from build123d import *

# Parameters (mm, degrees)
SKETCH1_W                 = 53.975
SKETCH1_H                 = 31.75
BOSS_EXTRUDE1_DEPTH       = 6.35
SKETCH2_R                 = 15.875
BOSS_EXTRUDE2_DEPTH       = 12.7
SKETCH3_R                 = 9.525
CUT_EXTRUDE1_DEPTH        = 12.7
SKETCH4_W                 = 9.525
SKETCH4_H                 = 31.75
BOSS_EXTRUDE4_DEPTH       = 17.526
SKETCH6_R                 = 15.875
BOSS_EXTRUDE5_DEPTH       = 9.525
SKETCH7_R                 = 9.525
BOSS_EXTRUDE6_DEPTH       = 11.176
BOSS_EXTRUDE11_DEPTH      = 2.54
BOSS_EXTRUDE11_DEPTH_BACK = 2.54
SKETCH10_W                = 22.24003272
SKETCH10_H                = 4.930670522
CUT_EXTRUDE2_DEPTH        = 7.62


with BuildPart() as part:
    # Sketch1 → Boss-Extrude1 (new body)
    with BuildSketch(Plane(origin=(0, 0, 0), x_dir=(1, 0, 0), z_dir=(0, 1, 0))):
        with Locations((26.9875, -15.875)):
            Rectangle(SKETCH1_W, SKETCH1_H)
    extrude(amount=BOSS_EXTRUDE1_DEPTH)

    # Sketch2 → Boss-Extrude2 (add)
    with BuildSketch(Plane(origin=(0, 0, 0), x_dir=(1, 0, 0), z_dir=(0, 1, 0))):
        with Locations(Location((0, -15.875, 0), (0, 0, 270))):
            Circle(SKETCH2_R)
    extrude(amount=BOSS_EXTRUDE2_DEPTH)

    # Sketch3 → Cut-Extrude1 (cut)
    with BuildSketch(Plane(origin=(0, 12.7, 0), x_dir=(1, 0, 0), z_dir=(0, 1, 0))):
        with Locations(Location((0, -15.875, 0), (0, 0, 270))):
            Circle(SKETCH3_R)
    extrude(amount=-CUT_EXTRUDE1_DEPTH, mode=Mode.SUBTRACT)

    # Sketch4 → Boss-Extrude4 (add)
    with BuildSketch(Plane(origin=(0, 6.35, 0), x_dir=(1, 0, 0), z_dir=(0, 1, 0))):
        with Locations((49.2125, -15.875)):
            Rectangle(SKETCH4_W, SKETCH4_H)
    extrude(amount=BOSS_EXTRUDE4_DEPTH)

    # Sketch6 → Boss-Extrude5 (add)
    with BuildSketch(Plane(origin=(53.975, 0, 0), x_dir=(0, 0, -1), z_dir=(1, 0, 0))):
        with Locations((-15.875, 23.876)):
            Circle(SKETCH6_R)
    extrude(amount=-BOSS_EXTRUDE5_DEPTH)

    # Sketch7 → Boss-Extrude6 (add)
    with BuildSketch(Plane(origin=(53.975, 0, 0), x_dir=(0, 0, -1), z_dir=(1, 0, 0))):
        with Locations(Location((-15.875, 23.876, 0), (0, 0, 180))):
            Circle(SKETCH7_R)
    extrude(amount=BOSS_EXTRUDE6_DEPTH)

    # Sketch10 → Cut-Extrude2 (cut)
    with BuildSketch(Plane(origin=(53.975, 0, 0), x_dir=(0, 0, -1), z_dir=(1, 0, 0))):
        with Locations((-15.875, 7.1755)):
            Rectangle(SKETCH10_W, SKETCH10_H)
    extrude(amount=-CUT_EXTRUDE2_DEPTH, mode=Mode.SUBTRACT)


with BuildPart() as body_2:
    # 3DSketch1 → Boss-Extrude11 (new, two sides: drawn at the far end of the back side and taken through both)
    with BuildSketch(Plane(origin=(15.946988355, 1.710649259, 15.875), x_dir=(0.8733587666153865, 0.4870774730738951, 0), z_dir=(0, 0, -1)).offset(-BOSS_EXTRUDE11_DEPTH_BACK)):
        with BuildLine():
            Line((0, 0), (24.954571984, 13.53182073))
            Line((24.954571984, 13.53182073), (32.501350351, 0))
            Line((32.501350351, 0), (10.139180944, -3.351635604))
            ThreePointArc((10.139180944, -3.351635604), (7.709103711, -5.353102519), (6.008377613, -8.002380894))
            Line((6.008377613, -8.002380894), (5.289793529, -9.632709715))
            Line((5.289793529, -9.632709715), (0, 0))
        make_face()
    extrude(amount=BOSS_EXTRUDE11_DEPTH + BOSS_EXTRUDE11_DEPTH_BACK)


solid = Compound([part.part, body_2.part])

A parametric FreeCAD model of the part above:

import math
import FreeCAD as App
import Part
import Sketcher
from FreeCAD import Vector
Q = App.Units.Quantity


def add_polygon(sketch, points):
    """Adds a closed chain of lines whose ends are joined by coincident constraints."""
    first, n = sketch.GeometryCount, len(points)
    for a, b in zip(points, points[1:] + points[:1]):
        sketch.addGeometry(Part.LineSegment(App.Vector(*a, 0), App.Vector(*b, 0)), False)
    for i in range(n):
        sketch.addConstraint(Sketcher.Constraint("Coincident", first + i, 2, first + (i + 1) % n, 1))

doc = App.newDocument("Part")
body = doc.addObject("PartDesign::Body", "Body")

# Sketch on XZ plane
sketch1 = doc.addObject("Sketcher::SketchObject", "Sketch")
body.addObject(sketch1)
sketch1.AttachmentSupport = (doc.XZ_Plane, [""])
sketch1.MapMode = "FlatFace"
add_polygon(sketch1, [(0, 0), (0, 32), (54, 32), (54, 0)])  # lines 0-3
sketch1.addConstraint(Sketcher.Constraint("Vertical", 0))
sketch1.addConstraint(Sketcher.Constraint("Horizontal", 1))
sketch1.addConstraint(Sketcher.Constraint("Vertical", 2))
sketch1.addConstraint(Sketcher.Constraint("Horizontal", 3))
sketch1.addConstraint(Sketcher.Constraint("Coincident", 3, 2, -1, 1))
sketch1.addConstraint(Sketcher.Constraint("DistanceY", 0, 1, 0, 2, Q("1.25 in")))
sketch1.addConstraint(Sketcher.Constraint("DistanceX", 1, 1, 1, 2, Q("2.125 in")))
pad1 = doc.addObject("PartDesign::Pad", "Pad")
body.addObject(pad1)
pad1.Profile = sketch1
pad1.Length = Q("0.25 in")
pad1.Reversed = True

# Sketch on XZ plane
sketch2 = doc.addObject("Sketcher::SketchObject", "Sketch001")
body.addObject(sketch2)
sketch2.AttachmentSupport = (doc.XZ_Plane, [""])
sketch2.MapMode = "FlatFace"
sketch2.addGeometry(Part.Circle(Vector(0, 16, 0), Vector(0, 0, 1), 16), False)
sketch2.addConstraint(Sketcher.Constraint("PointOnObject", 0, 3, -2))
sketch2.addConstraint(Sketcher.Constraint("Diameter", 0, Q("1.25 in")))
sketch2.addConstraint(Sketcher.Constraint("DistanceY", -1, 1, 0, 3, Q("0.625 in")))
pad2 = doc.addObject("PartDesign::Pad", "Pad001")
body.addObject(pad2)
pad2.Profile = sketch2
pad2.Length = Q("0.5 in")
pad2.Reversed = True

# Sketch on XZ plane
sketch3 = doc.addObject("Sketcher::SketchObject", "Sketch002")
body.addObject(sketch3)
sketch3.AttachmentSupport = (doc.XZ_Plane, [""])
sketch3.MapMode = "FlatFace"
sketch3.AttachmentOffset = App.Placement(Vector(0, 0, -0.5 * 25.4), App.Rotation())
sketch3.addGeometry(Part.Circle(Vector(0, 16, 0), Vector(0, 0, 1), 10), False)
sketch3.addConstraint(Sketcher.Constraint("PointOnObject", 0, 3, -2))
sketch3.addConstraint(Sketcher.Constraint("Diameter", 0, Q("0.75 in")))
sketch3.addConstraint(Sketcher.Constraint("DistanceY", -1, 1, 0, 3, Q("0.625 in")))
pocket1 = doc.addObject("PartDesign::Pocket", "Pocket")
body.addObject(pocket1)
pocket1.Profile = sketch3
pocket1.Length = Q("0.5 in")
pocket1.Reversed = True

# Sketch on XZ plane
sketch4 = doc.addObject("Sketcher::SketchObject", "Sketch003")
body.addObject(sketch4)
sketch4.AttachmentSupport = (doc.XZ_Plane, [""])
sketch4.MapMode = "FlatFace"
sketch4.AttachmentOffset = App.Placement(Vector(0, 0, -0.25 * 25.4), App.Rotation())
add_polygon(sketch4, [(44, 0), (44, 32), (54, 32), (54, 0)])  # lines 0-3
sketch4.addConstraint(Sketcher.Constraint("Vertical", 0))
sketch4.addConstraint(Sketcher.Constraint("Horizontal", 1))
sketch4.addConstraint(Sketcher.Constraint("Vertical", 2))
sketch4.addConstraint(Sketcher.Constraint("Horizontal", 3))
sketch4.addConstraint(Sketcher.Constraint("PointOnObject", 2, 2, -1))
sketch4.addConstraint(Sketcher.Constraint("DistanceY", 0, 1, 0, 2, Q("1.25 in")))
sketch4.addConstraint(Sketcher.Constraint("DistanceX", 1, 1, 1, 2, Q("0.375 in")))
sketch4.addConstraint(Sketcher.Constraint("DistanceX", -1, 1, 0, 2, Q("1.75 in")))
pad3 = doc.addObject("PartDesign::Pad", "Pad002")
body.addObject(pad3)
pad3.Profile = sketch4
pad3.Length = Q("0.69 in")
pad3.Reversed = True

# Sketch on YZ plane
sketch5 = doc.addObject("Sketcher::SketchObject", "Sketch004")
body.addObject(sketch5)
sketch5.AttachmentSupport = (doc.YZ_Plane, [""])
sketch5.MapMode = "FlatFace"
sketch5.AttachmentOffset = App.Placement(Vector(0, 0, 2.125 * 25.4), App.Rotation())
sketch5.addGeometry(Part.Circle(Vector(24, 16, 0), Vector(0, 0, 1), 16), False)
sketch5.addConstraint(Sketcher.Constraint("Diameter", 0, Q("1.25 in")))
sketch5.addConstraint(Sketcher.Constraint("DistanceX", -1, 1, 0, 3, Q("0.94 in")))
sketch5.addConstraint(Sketcher.Constraint("DistanceY", -1, 1, 0, 3, Q("0.625 in")))
pad4 = doc.addObject("PartDesign::Pad", "Pad003")
body.addObject(pad4)
pad4.Profile = sketch5
pad4.Length = Q("0.375 in")
pad4.Reversed = True

# Sketch on YZ plane
sketch6 = doc.addObject("Sketcher::SketchObject", "Sketch005")
body.addObject(sketch6)
sketch6.AttachmentSupport = (doc.YZ_Plane, [""])
sketch6.MapMode = "FlatFace"
sketch6.AttachmentOffset = App.Placement(Vector(0, 0, 2.125 * 25.4), App.Rotation())
sketch6.addGeometry(Part.Circle(Vector(24, 16, 0), Vector(0, 0, 1), 10), False)
sketch6.addConstraint(Sketcher.Constraint("Diameter", 0, Q("0.75 in")))
sketch6.addConstraint(Sketcher.Constraint("DistanceX", -1, 1, 0, 3, Q("0.94 in")))
sketch6.addConstraint(Sketcher.Constraint("DistanceY", -1, 1, 0, 3, Q("0.625 in")))
pad5 = doc.addObject("PartDesign::Pad", "Pad004")
body.addObject(pad5)
pad5.Profile = sketch6
pad5.Length = Q("0.44 in")

# Sketch on YZ plane
sketch7 = doc.addObject("Sketcher::SketchObject", "Sketch006")
body.addObject(sketch7)
sketch7.AttachmentSupport = (doc.YZ_Plane, [""])
sketch7.MapMode = "FlatFace"
sketch7.AttachmentOffset = App.Placement(Vector(0, 0, 2.125 * 25.4), App.Rotation())
add_polygon(sketch7, [(9.6, 27), (4.7, 27), (4.7, 4.8), (9.6, 4.8)])  # lines 0-3
sketch7.addConstraint(Sketcher.Constraint("Horizontal", 0))
sketch7.addConstraint(Sketcher.Constraint("Vertical", 1))
sketch7.addConstraint(Sketcher.Constraint("Horizontal", 2))
sketch7.addConstraint(Sketcher.Constraint("Vertical", 3))
sketch7.addConstraint(Sketcher.Constraint("DistanceX", 0, 2, 0, 1, Q("4.930671 mm")))
sketch7.addConstraint(Sketcher.Constraint("DistanceY", 1, 2, 1, 1, Q("22.240033 mm")))
sketch7.addConstraint(Sketcher.Constraint("DistanceX", -1, 1, 0, 2, Q("4.710165 mm")))
sketch7.addConstraint(Sketcher.Constraint("DistanceY", -1, 1, 0, 2, Q("26.995016 mm")))
pocket2 = doc.addObject("PartDesign::Pocket", "Pocket001")
body.addObject(pocket2)
pocket2.Profile = sketch7
pocket2.Length = Q("0.3 in")
body2 = doc.addObject("PartDesign::Body", "Body001")

# Sketch on XY plane
sketch8 = doc.addObject("Sketcher::SketchObject", "Sketch007")
body2.addObject(sketch8)
sketch8.AttachmentSupport = (doc.getObject("XY_Plane001"), [""])
sketch8.MapMode = "FlatFace"
sketch8.AttachmentOffset = App.Placement(Vector(0, 0, 0.625 * 25.4), App.Rotation())
sketch8.addGeometry(Part.LineSegment(Vector(44.332328, 2.047325, 0), Vector(15.946988, 1.710649, 0)), False)
sketch8.addGeometry(Part.LineSegment(Vector(15.946988, 1.710649, 0), Vector(15.875, 12.7, 0)), False)
sketch8.addGeometry(Part.LineSegment(Vector(15.875, 12.7, 0), Vector(17.296678, 11.626144, 0)), False)
sketch8.addGeometry(Part.ArcOfCircle(Part.Circle(Vector(23.42037, 19.733302, 0), Vector(0, 0, 1), 10.16), math.radians(-127.065351), math.radians(-91.414182)), False)
sketch8.addGeometry(Part.LineSegment(Vector(23.169625, 9.576396, 0), Vector(44.332328, 17.541325, 0)), False)
sketch8.addGeometry(Part.LineSegment(Vector(44.332328, 17.541325, 0), Vector(44.332328, 2.047325, 0)), False)
sketch8.addConstraint(Sketcher.Constraint("Coincident", 0, 2, 1, 1))
sketch8.addConstraint(Sketcher.Constraint("Coincident", 1, 2, 2, 1))
sketch8.addConstraint(Sketcher.Constraint("Coincident", 2, 2, 3, 1))
sketch8.addConstraint(Sketcher.Constraint("Coincident", 3, 2, 4, 1))
sketch8.addConstraint(Sketcher.Constraint("Coincident", 4, 2, 5, 1))
sketch8.addConstraint(Sketcher.Constraint("Coincident", 5, 2, 0, 1))
sketch8.addConstraint(Sketcher.Constraint("Vertical", 5))
sketch8.addConstraint(Sketcher.Constraint("Radius", 3, Q("0.4 in")))
sketch8.addConstraint(Sketcher.Constraint("DistanceY", 5, 2, 5, 1, Q("0.61 in")))
sketch8.addConstraint(Sketcher.Constraint("DistanceY", -1, 1, 1, 2, Q("0.5 in")))
sketch8.addConstraint(Sketcher.Constraint("DistanceX", -1, 1, 1, 2, Q("0.625 in")))
sketch8.addConstraint(Sketcher.Constraint("DistanceY", -1, 1, 3, 3, Q("19.733302 mm")))
sketch8.addConstraint(Sketcher.Constraint("DistanceX", -1, 1, 3, 3, Q("23.42037 mm")))
sketch8.addConstraint(Sketcher.Constraint("DistanceX", -1, 1, 0, 2, Q("15.946988 mm")))
sketch8.addConstraint(Sketcher.Constraint("DistanceY", -1, 1, 0, 2, Q("1.710649 mm")))
sketch8.addConstraint(Sketcher.Constraint("DistanceX", -1, 1, 2, 2, Q("17.296678 mm")))
sketch8.addConstraint(Sketcher.Constraint("DistanceY", 3, 2, 4, 2, Q("7.964929 mm")))
sketch8.addConstraint(Sketcher.Constraint("DistanceX", 2, 2, 4, 2, Q("27.035649 mm")))
sketch8.addConstraint(Sketcher.Constraint("DistanceY", 2, 2, 4, 2, Q("5.915181 mm")))
pad6 = doc.addObject("PartDesign::Pad", "Pad005")
body2.addObject(pad6)
pad6.Profile = sketch8
pad6.Type = "TwoLengths"
pad6.Length = Q("0.1 in")
pad6.Length2 = Q("0.1 in")
pad6.Reversed = True

doc.recompute()
